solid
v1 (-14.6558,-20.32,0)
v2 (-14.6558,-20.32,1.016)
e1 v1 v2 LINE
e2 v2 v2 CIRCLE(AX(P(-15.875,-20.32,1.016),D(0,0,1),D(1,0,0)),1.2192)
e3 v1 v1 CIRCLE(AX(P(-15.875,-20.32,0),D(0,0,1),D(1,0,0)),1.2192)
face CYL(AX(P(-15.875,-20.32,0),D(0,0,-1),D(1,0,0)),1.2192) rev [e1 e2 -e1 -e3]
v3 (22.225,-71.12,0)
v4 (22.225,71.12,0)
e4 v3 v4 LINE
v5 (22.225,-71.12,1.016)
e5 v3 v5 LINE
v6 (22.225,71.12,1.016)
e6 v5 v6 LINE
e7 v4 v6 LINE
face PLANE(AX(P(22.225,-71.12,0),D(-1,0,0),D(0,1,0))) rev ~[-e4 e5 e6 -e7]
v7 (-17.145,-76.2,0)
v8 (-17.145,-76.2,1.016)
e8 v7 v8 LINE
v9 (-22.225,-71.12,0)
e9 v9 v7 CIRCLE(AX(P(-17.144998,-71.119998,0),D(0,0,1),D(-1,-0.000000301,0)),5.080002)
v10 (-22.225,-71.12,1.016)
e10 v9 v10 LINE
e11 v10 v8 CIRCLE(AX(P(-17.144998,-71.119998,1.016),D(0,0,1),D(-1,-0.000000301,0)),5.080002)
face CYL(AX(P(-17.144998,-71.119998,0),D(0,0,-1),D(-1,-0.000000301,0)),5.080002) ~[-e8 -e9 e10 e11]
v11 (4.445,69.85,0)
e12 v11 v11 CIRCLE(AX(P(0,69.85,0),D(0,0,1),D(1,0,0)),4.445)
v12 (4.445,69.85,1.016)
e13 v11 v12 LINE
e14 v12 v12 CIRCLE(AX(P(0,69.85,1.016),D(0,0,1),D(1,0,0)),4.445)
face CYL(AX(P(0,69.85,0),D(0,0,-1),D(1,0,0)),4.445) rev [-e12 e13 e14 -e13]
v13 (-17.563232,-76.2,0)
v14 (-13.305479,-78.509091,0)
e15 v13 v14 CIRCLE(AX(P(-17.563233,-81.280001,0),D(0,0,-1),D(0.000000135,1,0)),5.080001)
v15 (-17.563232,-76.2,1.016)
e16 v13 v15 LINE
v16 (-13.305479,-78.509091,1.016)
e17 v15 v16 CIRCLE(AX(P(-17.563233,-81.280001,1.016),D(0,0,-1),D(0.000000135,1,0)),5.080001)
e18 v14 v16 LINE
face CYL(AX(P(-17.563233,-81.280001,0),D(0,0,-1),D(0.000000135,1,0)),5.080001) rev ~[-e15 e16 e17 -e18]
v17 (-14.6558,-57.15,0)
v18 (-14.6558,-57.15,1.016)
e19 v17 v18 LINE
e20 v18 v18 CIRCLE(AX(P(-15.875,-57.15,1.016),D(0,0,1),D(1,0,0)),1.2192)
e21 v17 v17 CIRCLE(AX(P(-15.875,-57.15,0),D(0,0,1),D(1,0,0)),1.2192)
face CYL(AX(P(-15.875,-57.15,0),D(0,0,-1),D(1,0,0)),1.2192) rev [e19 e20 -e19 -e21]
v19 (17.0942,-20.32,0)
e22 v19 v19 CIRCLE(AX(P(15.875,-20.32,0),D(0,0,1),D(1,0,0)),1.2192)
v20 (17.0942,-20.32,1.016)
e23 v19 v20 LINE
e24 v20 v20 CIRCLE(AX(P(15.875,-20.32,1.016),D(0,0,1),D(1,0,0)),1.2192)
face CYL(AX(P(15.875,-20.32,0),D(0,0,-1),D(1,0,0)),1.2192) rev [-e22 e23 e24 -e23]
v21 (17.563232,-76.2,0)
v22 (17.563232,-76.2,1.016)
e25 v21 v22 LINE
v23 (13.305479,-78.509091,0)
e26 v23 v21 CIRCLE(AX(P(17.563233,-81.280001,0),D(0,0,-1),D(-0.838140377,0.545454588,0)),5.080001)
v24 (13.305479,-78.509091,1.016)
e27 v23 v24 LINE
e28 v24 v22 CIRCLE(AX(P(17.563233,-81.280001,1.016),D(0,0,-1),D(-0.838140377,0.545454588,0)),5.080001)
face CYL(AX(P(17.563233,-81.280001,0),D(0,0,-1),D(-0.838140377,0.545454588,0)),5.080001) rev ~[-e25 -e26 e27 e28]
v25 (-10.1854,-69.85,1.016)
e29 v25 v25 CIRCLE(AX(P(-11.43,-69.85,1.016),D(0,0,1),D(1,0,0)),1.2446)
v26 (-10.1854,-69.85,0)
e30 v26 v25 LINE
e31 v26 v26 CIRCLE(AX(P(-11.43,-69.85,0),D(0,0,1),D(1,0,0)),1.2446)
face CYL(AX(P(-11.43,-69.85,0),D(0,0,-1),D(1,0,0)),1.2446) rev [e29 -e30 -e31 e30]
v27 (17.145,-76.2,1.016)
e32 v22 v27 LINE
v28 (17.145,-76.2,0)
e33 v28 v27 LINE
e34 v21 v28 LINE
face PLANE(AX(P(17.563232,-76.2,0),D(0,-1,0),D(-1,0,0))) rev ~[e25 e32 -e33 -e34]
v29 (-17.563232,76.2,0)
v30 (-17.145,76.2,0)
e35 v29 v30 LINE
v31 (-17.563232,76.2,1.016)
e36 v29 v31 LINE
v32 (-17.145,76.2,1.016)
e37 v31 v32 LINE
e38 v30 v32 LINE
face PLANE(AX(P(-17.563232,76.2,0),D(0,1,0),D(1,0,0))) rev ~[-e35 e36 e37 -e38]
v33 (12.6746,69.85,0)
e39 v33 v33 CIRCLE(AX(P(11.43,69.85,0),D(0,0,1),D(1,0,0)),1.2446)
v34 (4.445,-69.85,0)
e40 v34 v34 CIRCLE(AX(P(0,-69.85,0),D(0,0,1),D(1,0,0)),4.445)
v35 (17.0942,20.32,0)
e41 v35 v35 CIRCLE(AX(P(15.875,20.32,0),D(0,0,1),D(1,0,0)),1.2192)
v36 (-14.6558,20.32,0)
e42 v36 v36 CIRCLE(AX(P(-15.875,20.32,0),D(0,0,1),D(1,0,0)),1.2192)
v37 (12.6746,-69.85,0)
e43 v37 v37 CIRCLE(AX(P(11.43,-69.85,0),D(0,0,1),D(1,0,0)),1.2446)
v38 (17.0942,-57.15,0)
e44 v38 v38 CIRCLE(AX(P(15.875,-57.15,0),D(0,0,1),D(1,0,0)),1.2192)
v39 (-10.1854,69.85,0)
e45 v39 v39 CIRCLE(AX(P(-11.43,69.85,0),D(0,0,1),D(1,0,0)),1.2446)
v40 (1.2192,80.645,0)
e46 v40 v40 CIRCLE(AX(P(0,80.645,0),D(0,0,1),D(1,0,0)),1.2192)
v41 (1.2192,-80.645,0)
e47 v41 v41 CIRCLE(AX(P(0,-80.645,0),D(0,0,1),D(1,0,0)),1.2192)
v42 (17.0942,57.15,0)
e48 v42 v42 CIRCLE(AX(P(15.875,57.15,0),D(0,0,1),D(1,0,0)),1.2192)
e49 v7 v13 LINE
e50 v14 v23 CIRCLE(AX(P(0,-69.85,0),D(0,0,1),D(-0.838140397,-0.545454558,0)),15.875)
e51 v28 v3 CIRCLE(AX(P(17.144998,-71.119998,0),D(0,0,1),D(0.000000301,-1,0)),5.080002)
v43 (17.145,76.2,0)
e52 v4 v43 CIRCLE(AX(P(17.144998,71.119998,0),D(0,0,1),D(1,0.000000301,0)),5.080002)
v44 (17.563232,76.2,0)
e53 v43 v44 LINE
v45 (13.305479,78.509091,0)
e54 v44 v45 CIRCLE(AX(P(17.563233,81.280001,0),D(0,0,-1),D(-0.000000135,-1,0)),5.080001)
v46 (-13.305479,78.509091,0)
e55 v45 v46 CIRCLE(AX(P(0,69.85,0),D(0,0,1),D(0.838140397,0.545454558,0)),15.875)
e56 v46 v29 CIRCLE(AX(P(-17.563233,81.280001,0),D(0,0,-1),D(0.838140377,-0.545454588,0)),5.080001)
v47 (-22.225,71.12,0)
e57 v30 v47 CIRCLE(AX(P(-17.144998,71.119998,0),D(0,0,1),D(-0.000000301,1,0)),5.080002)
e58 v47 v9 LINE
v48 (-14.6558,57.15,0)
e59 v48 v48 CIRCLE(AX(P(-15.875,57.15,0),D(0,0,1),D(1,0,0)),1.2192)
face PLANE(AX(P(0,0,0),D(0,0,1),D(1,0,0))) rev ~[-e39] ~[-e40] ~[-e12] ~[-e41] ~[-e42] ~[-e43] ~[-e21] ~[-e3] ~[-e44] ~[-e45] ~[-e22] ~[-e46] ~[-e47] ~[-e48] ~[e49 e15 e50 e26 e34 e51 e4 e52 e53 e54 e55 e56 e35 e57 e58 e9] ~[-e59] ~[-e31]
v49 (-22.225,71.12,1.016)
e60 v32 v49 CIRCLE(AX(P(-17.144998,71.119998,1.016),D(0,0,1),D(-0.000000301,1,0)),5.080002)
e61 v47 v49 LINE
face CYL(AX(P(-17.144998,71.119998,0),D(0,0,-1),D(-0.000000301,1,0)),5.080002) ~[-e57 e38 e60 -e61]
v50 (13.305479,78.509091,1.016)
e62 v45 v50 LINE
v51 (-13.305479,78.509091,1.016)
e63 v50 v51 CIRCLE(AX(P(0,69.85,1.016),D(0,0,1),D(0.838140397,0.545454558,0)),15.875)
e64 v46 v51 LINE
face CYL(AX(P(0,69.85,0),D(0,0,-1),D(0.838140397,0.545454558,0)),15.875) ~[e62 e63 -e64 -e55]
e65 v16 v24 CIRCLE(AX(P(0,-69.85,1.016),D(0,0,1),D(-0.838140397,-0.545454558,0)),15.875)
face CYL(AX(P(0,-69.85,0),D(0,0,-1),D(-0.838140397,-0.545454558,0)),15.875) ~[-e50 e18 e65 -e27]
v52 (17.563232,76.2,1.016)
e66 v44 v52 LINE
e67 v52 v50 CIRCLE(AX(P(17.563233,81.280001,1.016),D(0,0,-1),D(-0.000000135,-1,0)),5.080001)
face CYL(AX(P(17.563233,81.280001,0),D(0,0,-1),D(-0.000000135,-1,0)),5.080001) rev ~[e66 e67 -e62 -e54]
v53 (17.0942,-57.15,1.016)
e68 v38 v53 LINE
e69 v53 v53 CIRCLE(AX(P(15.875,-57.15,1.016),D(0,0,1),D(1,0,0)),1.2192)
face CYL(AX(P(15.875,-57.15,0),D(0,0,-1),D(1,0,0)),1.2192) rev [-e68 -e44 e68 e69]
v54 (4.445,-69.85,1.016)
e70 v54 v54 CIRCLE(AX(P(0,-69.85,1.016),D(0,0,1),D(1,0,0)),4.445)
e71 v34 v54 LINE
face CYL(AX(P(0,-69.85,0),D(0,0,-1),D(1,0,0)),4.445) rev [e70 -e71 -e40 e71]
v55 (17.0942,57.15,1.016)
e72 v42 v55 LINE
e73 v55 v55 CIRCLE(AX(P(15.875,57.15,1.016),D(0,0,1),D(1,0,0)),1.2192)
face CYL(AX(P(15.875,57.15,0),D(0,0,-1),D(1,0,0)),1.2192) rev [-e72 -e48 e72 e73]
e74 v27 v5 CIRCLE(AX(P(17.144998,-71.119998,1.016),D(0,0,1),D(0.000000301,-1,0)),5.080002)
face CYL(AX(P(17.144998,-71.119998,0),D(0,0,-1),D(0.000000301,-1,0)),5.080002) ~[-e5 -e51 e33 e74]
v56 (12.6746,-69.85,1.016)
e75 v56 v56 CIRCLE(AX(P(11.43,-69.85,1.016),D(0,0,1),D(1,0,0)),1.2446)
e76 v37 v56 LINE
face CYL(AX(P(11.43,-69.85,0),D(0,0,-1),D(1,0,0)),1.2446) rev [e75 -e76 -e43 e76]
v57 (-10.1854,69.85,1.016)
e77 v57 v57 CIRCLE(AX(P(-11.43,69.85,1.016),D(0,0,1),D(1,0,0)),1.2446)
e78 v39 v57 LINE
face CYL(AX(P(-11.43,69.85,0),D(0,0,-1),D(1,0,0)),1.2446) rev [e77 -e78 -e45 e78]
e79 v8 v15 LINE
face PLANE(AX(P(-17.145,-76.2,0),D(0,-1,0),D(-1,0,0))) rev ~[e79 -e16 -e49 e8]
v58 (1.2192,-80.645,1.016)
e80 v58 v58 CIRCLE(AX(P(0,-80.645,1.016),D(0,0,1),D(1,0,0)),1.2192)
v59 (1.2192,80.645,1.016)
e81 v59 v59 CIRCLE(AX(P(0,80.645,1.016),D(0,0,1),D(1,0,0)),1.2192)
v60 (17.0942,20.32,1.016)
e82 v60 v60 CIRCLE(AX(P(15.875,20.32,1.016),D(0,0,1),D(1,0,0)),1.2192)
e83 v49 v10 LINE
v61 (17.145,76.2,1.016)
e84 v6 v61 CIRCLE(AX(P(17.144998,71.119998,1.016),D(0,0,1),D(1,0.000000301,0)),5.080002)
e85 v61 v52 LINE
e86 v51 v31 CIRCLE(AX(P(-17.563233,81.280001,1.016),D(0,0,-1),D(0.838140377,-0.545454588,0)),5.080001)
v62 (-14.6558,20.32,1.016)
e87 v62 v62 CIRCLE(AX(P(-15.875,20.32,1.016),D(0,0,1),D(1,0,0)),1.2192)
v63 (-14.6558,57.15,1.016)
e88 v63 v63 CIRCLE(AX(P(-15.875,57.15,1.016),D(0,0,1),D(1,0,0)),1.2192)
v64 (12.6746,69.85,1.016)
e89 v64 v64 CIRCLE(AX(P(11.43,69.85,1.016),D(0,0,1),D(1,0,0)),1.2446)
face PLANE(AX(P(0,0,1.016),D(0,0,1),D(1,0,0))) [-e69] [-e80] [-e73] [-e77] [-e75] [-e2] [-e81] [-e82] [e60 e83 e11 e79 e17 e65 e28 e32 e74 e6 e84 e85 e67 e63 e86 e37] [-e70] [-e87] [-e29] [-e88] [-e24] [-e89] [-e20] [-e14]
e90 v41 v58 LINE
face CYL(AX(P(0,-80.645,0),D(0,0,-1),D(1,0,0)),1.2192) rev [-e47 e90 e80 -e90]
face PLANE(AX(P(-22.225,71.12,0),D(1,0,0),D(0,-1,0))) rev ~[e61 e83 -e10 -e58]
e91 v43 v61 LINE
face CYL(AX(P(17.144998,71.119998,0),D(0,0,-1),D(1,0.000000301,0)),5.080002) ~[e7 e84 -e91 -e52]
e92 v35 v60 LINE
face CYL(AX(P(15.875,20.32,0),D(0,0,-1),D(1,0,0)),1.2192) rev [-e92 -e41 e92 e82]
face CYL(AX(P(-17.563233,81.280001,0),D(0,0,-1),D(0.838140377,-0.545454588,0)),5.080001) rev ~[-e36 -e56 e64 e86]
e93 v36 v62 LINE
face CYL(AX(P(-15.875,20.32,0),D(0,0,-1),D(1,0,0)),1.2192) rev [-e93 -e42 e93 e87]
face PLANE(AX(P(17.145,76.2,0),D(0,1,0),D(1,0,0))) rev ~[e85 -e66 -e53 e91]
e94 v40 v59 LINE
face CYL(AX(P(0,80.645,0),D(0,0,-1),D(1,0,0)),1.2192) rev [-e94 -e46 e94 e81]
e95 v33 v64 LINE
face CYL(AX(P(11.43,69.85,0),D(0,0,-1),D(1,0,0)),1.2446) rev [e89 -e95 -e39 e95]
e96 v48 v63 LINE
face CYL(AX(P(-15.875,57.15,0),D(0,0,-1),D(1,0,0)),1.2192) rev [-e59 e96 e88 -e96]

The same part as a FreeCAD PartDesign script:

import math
import FreeCAD as App
import Part
import Sketcher
from FreeCAD import Vector
Q = App.Units.Quantity

doc = App.newDocument("Part")
body = doc.addObject("PartDesign::Body", "Body")

# Sketch on XY plane
sketch1 = body.newObject("Sketcher::SketchObject", "Sketch")
sketch1.AttachmentSupport = (doc.getObject("XY_Plane"), [""])
sketch1.MapMode = "FlatFace"
sketch1.addGeometry(Part.ArcOfCircle(Part.Circle(Vector(17.56, -81.28, 0), Vector(0, 0, 1), 5.08), math.radians(90), math.radians(147)), False)
sketch1.addGeometry(Part.LineSegment(Vector(17.56, -76.2, 0), Vector(17.14, -76.2, 0)), False)
sketch1.addGeometry(Part.ArcOfCircle(Part.Circle(Vector(17.14, -71.12, 0), Vector(0, 0, 1), 5.08), math.radians(-90), math.radians(0)), False)
sketch1.addGeometry(Part.LineSegment(Vector(22.23, -71.12, 0), Vector(22.23, 71.12, 0)), False)
sketch1.addGeometry(Part.ArcOfCircle(Part.Circle(Vector(17.14, 71.12, 0), Vector(0, 0, 1), 5.08), math.radians(0), math.radians(90)), False)
sketch1.addGeometry(Part.LineSegment(Vector(17.14, 76.2, 0), Vector(17.56, 76.2, 0)), False)
sketch1.addGeometry(Part.ArcOfCircle(Part.Circle(Vector(17.56, 81.28, 0), Vector(0, 0, 1), 5.08), math.radians(-147), math.radians(-90)), False)
sketch1.addGeometry(Part.ArcOfCircle(Part.Circle(Vector(0, 69.85, 0), Vector(0, 0, 1), 15.88), math.radians(33), math.radians(147)), False)
sketch1.addGeometry(Part.ArcOfCircle(Part.Circle(Vector(-17.56, 81.28, 0), Vector(0, 0, 1), 5.08), math.radians(-90), math.radians(-33)), False)
sketch1.addGeometry(Part.LineSegment(Vector(-17.56, 76.2, 0), Vector(-17.14, 76.2, 0)), False)
sketch1.addGeometry(Part.ArcOfCircle(Part.Circle(Vector(-17.14, 71.12, 0), Vector(0, 0, 1), 5.08), math.radians(90), math.radians(180)), False)
sketch1.addGeometry(Part.LineSegment(Vector(-22.23, 71.12, 0), Vector(-22.23, -71.12, 0)), False)
sketch1.addGeometry(Part.ArcOfCircle(Part.Circle(Vector(-17.14, -71.12, 0), Vector(0, 0, 1), 5.08), math.radians(-180), math.radians(-90)), False)
sketch1.addGeometry(Part.LineSegment(Vector(-17.14, -76.2, 0), Vector(-17.56, -76.2, 0)), False)
sketch1.addGeometry(Part.ArcOfCircle(Part.Circle(Vector(-17.56, -81.28, 0), Vector(0, 0, 1), 5.08), math.radians(33), math.radians(90)), False)
sketch1.addGeometry(Part.ArcOfCircle(Part.Circle(Vector(0, -69.85, 0), Vector(0, 0, 1), 15.88), math.radians(-147), math.radians(-33)), False)
sketch1.addGeometry(Part.Circle(Vector(-11.43, -69.85, 0), Vector(0, 0, 1), 1.24), False)
sketch1.addGeometry(Part.Circle(Vector(-15.88, -57.15, 0), Vector(0, 0, 1), 1.22), False)
sketch1.addGeometry(Part.Circle(Vector(-15.88, -20.32, 0), Vector(0, 0, 1), 1.22), False)
sketch1.addGeometry(Part.Circle(Vector(0, -80.64, 0), Vector(0, 0, 1), 1.22), False)
sketch1.addGeometry(Part.Circle(Vector(0, -69.85, 0), Vector(0, 0, 1), 4.45), False)
sketch1.addGeometry(Part.Circle(Vector(11.43, -69.85, 0), Vector(0, 0, 1), 1.24), False)
sketch1.addGeometry(Part.Circle(Vector(15.88, -57.15, 0), Vector(0, 0, 1), 1.22), False)
sketch1.addGeometry(Part.Circle(Vector(15.88, -20.32, 0), Vector(0, 0, 1), 1.22), False)
sketch1.addGeometry(Part.Circle(Vector(-15.88, 20.32, 0), Vector(0, 0, 1), 1.22), False)
sketch1.addGeometry(Part.Circle(Vector(-15.88, 57.15, 0), Vector(0, 0, 1), 1.22), False)
sketch1.addGeometry(Part.Circle(Vector(-11.43, 69.85, 0), Vector(0, 0, 1), 1.24), False)
sketch1.addGeometry(Part.Circle(Vector(15.88, 20.32, 0), Vector(0, 0, 1), 1.22), False)
sketch1.addGeometry(Part.Circle(Vector(0, 69.85, 0), Vector(0, 0, 1), 4.45), False)
sketch1.addGeometry(Part.Circle(Vector(0, 80.64, 0), Vector(0, 0, 1), 1.22), False)
sketch1.addGeometry(Part.Circle(Vector(15.88, 57.15, 0), Vector(0, 0, 1), 1.22), False)
sketch1.addGeometry(Part.Circle(Vector(11.43, 69.85, 0), Vector(0, 0, 1), 1.24), False)
sketch1.addConstraint(Sketcher.Constraint("Tangent", 0, 1, 1, 1))
sketch1.addConstraint(Sketcher.Constraint("Tangent", 1, 2, 2, 1))
sketch1.addConstraint(Sketcher.Constraint("Tangent", 2, 2, 3, 1))
sketch1.addConstraint(Sketcher.Constraint("Tangent", 3, 2, 4, 1))
sketch1.addConstraint(Sketcher.Constraint("Tangent", 4, 2, 5, 1))
sketch1.addConstraint(Sketcher.Constraint("Tangent", 5, 2, 6, 2))
sketch1.addConstraint(Sketcher.Constraint("Tangent", 6, 1, 7, 1))
sketch1.addConstraint(Sketcher.Constraint("Tangent", 7, 2, 8, 2))
sketch1.addConstraint(Sketcher.Constraint("Tangent", 8, 1, 9, 1))
sketch1.addConstraint(Sketcher.Constraint("Tangent", 9, 2, 10, 1))
sketch1.addConstraint(Sketcher.Constraint("Tangent", 10, 2, 11, 1))
sketch1.addConstraint(Sketcher.Constraint("Tangent", 11, 2, 12, 1))
sketch1.addConstraint(Sketcher.Constraint("Tangent", 12, 2, 13, 1))
sketch1.addConstraint(Sketcher.Constraint("Tangent", 13, 2, 14, 2))
sketch1.addConstraint(Sketcher.Constraint("Tangent", 14, 1, 15, 1))
sketch1.addConstraint(Sketcher.Constraint("Tangent", 15, 2, 0, 2))
sketch1.addConstraint(Sketcher.Constraint("Horizontal", 1))
sketch1.addConstraint(Sketcher.Constraint("Vertical", 3))
sketch1.addConstraint(Sketcher.Constraint("Horizontal", 5))
sketch1.addConstraint(Sketcher.Constraint("Horizontal", 9))
sketch1.addConstraint(Sketcher.Constraint("Vertical", 11))
sketch1.addConstraint(Sketcher.Constraint("Horizontal", 13))
sketch1.addConstraint(Sketcher.Constraint("Coincident", 20, 3, 15, 3))
sketch1.addConstraint(Sketcher.Constraint("Coincident", 28, 3, 7, 3))
sketch1.addConstraint(Sketcher.Constraint("Equal", 0, 2))
sketch1.addConstraint(Sketcher.Constraint("Equal", 2, 4))
sketch1.addConstraint(Sketcher.Constraint("Equal", 4, 6))
sketch1.addConstraint(Sketcher.Constraint("Equal", 6, 8))
sketch1.addConstraint(Sketcher.Constraint("Equal", 8, 10))
sketch1.addConstraint(Sketcher.Constraint("Equal", 10, 12))
sketch1.addConstraint(Sketcher.Constraint("Equal", 12, 14))
sketch1.addConstraint(Sketcher.Constraint("Equal", 7, 15))
sketch1.addConstraint(Sketcher.Constraint("Equal", 17, 18))
sketch1.addConstraint(Sketcher.Constraint("Equal", 18, 19))
sketch1.addConstraint(Sketcher.Constraint("Equal", 16, 21))
sketch1.addConstraint(Sketcher.Constraint("Equal", 19, 22))
sketch1.addConstraint(Sketcher.Constraint("Equal", 22, 23))
sketch1.addConstraint(Sketcher.Constraint("Equal", 23, 24))
sketch1.addConstraint(Sketcher.Constraint("Equal", 24, 25))
sketch1.addConstraint(Sketcher.Constraint("Equal", 21, 26))
sketch1.addConstraint(Sketcher.Constraint("Equal", 25, 27))
sketch1.addConstraint(Sketcher.Constraint("Equal", 20, 28))
sketch1.addConstraint(Sketcher.Constraint("Equal", 27, 29))
sketch1.addConstraint(Sketcher.Constraint("Equal", 29, 30))
sketch1.addConstraint(Sketcher.Constraint("Equal", 26, 31))
sketch1.addConstraint(Sketcher.Constraint("Symmetric", 0, 3, 8, 3, -1, 1))
sketch1.addConstraint(Sketcher.Constraint("Symmetric", 4, 3, 12, 3, -1, 1))
sketch1.addConstraint(Sketcher.Constraint("Symmetric", 23, 3, 24, 3, -1, 1))
sketch1.addConstraint(Sketcher.Constraint("Symmetric", 22, 3, 25, 3, -1, 1))
sketch1.addConstraint(Sketcher.Constraint("Symmetric", 21, 3, 26, 3, -1, 1))
sketch1.addConstraint(Sketcher.Constraint("Symmetric", 18, 3, 27, 3, -1, 1))
sketch1.addConstraint(Sketcher.Constraint("Symmetric", 19, 3, 29, 3, -1, 1))
sketch1.addConstraint(Sketcher.Constraint("Symmetric", 17, 3, 30, 3, -1, 1))
sketch1.addConstraint(Sketcher.Constraint("Symmetric", 16, 3, 31, 3, -1, 1))
sketch1.addConstraint(Sketcher.Constraint("Symmetric", 6, 3, 8, 3, -2))
sketch1.addConstraint(Sketcher.Constraint("Symmetric", 16, 3, 21, 3, -2))
sketch1.addConstraint(Sketcher.Constraint("Symmetric", 17, 3, 22, 3, -2))
sketch1.addConstraint(Sketcher.Constraint("Symmetric", 18, 3, 23, 3, -2))
sketch1.addConstraint(Sketcher.Constraint("PointOnObject", 15, 3, -2))
sketch1.addConstraint(Sketcher.Constraint("PointOnObject", 19, 3, -2))
sketch1.addConstraint(Sketcher.Constraint("Horizontal", 15, 3, 16, 3))
sketch1.addConstraint(Sketcher.Constraint("Vertical", 17, 3, 18, 3))
sketch1.addConstraint(Sketcher.Constraint("Radius", 0, Q("0.2 in")))
sketch1.addConstraint(Sketcher.Constraint("Diameter", 20, Q("0.35 in")))
sketch1.addConstraint(Sketcher.Constraint("Diameter", 16, Q("0.098 in")))
sketch1.addConstraint(Sketcher.Constraint("Diameter", 17, Q("0.096 in")))
sketch1.addConstraint(Sketcher.Constraint("DistanceY", 3, 1, 3, 2, Q("5.6 in")))
sketch1.addConstraint(Sketcher.Constraint("Radius", 7, Q("0.625 in")))
sketch1.addConstraint(Sketcher.Constraint("DistanceY", 12, 3, 18, 3, Q("1.9999999 in")))
sketch1.addConstraint(Sketcher.Constraint("DistanceY", 15, 3, 7, 3, Q("5.5 in")))
sketch1.addConstraint(Sketcher.Constraint("DistanceY", 16, 3, 17, 3, Q("0.5 in")))
sketch1.addConstraint(Sketcher.Constraint("DistanceX", 17, 3, 2, 3, Q("1.2999999 in")))
sketch1.addConstraint(Sketcher.Constraint("DistanceX", 16, 3, -1, 1, Q("0.45 in")))
sketch1.addConstraint(Sketcher.Constraint("DistanceX", 10, 3, 4, 3, Q("1.3499999 in")))
sketch1.addConstraint(Sketcher.Constraint("DistanceY", 19, 3, -1, 1, Q("3.175 in")))
pad1 = body.newObject("PartDesign::Pad", "Pad")
pad1.Profile = sketch1
pad1.Length = Q("0.04 in")

doc.recompute()
